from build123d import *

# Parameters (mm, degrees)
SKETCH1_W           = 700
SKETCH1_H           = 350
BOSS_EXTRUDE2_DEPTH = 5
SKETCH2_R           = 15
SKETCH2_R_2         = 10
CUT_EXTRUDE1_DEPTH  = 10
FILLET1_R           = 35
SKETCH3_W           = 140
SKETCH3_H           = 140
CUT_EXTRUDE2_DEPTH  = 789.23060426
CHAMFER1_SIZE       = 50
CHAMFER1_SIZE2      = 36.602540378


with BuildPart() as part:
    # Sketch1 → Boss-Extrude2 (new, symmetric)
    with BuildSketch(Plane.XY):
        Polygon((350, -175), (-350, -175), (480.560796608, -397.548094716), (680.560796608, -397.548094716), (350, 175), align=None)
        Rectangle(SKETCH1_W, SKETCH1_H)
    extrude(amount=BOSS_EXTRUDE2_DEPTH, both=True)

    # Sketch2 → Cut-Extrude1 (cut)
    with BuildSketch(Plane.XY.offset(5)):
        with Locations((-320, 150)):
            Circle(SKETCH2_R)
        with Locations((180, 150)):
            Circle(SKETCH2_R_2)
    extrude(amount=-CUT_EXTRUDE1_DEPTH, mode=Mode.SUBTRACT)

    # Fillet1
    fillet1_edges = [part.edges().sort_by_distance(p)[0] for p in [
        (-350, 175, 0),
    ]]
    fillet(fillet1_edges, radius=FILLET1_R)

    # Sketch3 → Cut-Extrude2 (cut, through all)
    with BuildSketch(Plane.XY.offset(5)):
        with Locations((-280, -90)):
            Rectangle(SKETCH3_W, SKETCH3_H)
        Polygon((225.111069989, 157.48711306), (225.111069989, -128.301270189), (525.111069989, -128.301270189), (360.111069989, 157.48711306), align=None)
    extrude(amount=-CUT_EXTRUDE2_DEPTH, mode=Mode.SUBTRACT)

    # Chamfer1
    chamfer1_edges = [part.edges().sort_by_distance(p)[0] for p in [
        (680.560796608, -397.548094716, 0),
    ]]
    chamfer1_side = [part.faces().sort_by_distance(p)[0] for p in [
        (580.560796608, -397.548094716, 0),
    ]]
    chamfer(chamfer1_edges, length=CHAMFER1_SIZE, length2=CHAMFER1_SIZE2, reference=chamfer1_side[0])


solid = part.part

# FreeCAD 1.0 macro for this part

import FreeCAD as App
import Part
import Sketcher

V = App.Vector
Q = App.Units.Quantity


def edges_at(feature, points):
    """Names of the edges that pass closest to the given points."""
    edges = feature.Shape.Edges
    near = lambda p: min(range(len(edges)), key=lambda i: edges[i].distToShape(Part.Vertex(*p))[0])
    return sorted({f"Edge{near(p) + 1}" for p in points})

doc = App.newDocument("Part")
body = doc.addObject("PartDesign::Body", "Body")

sketch1 = body.newObject("Sketcher::SketchObject", "Sketch")
sketch1.AttachmentSupport = (doc.getObject("XY_Plane"), [""])
sketch1.MapMode = "FlatFace"
sketch1.addGeometry(Part.LineSegment(V(-350, -175, 0), V(480.560797, -397.548095, 0)), False)
sketch1.addGeometry(Part.LineSegment(V(480.560797, -397.548095, 0), V(680.560797, -397.548095, 0)), False)
sketch1.addGeometry(Part.LineSegment(V(680.560797, -397.548095, 0), V(350, 175, 0)), False)
sketch1.addGeometry(Part.LineSegment(V(350, 175, 0), V(-350, 175, 0)), False)
sketch1.addGeometry(Part.LineSegment(V(-350, 175, 0), V(-350, -175, 0)), False)
sketch1.addConstraint(Sketcher.Constraint("Coincident", 0, 2, 1, 1))
sketch1.addConstraint(Sketcher.Constraint("Coincident", 1, 2, 2, 1))
sketch1.addConstraint(Sketcher.Constraint("Coincident", 2, 2, 3, 1))
sketch1.addConstraint(Sketcher.Constraint("Coincident", 3, 2, 4, 1))
sketch1.addConstraint(Sketcher.Constraint("Coincident", 4, 2, 0, 1))
sketch1.addConstraint(Sketcher.Constraint("Horizontal", 1))
sketch1.addConstraint(Sketcher.Constraint("Horizontal", 3))
sketch1.addConstraint(Sketcher.Constraint("Vertical", 4))
sketch1.addConstraint(Sketcher.Constraint("Symmetric", 2, 2, 4, 2, -1, 1))
sketch1.addConstraint(Sketcher.Constraint("DistanceX", 1, 1, 1, 2, Q("200 mm")))
sketch1.addConstraint(Sketcher.Constraint("DistanceX", 3, 2, 3, 1, Q("700 mm")))
sketch1.addConstraint(Sketcher.Constraint("DistanceY", 4, 2, 4, 1, Q("350 mm")))
sketch1.addConstraint(Sketcher.Constraint("Angle", 0, Q("-15 deg")))
sketch1.addConstraint(Sketcher.Constraint("Angle", 2, Q("120 deg")))
pad1 = body.newObject("PartDesign::Pad", "Pad")
pad1.Profile = sketch1
pad1.Length = 10
pad1.Midplane = True

sketch2 = body.newObject("Sketcher::SketchObject", "Sketch001")
sketch2.AttachmentSupport = (doc.getObject("XY_Plane"), [""])
sketch2.MapMode = "FlatFace"
sketch2.AttachmentOffset = App.Placement(V(0, 0, 5), App.Rotation())
sketch2.addGeometry(Part.Circle(V(-320, 150, 0), V(0, 0, 1), 15), False)
sketch2.addGeometry(Part.Circle(V(180, 150, 0), V(0, 0, 1), 10), False)
sketch2.addConstraint(Sketcher.Constraint("Horizontal", 0, 3, 1, 3))
sketch2.addConstraint(Sketcher.Constraint("Diameter", 0, Q("30 mm")))
sketch2.addConstraint(Sketcher.Constraint("Diameter", 1, Q("20 mm")))
sketch2.addConstraint(Sketcher.Constraint("DistanceX", 0, 3, -1, 1, Q("320 mm")))
sketch2.addConstraint(Sketcher.Constraint("DistanceY", -1, 1, 0, 3, Q("150 mm")))
sketch2.addConstraint(Sketcher.Constraint("DistanceX", -1, 1, 1, 3, Q("180 mm")))
pocket1 = body.newObject("PartDesign::Pocket", "Pocket")
pocket1.Profile = sketch2
pocket1.Length = 10
doc.recompute()

fillet = body.newObject("PartDesign::Fillet", "Fillet")
fillet.Base = (pocket1, edges_at(pocket1, [(-350, 175, 0)]))
fillet.Radius = 35

sketch3 = body.newObject("Sketcher::SketchObject", "Sketch002")
sketch3.AttachmentSupport = (doc.getObject("XY_Plane"), [""])
sketch3.MapMode = "FlatFace"
sketch3.AttachmentOffset = App.Placement(V(0, 0, 5), App.Rotation())
sketch3.addGeometry(Part.LineSegment(V(-350, -20, 0), V(-350, -160, 0)), False)
sketch3.addGeometry(Part.LineSegment(V(-350, -160, 0), V(-210, -160, 0)), False)
sketch3.addGeometry(Part.LineSegment(V(-210, -160, 0), V(-210, -20, 0)), False)
sketch3.addGeometry(Part.LineSegment(V(-210, -20, 0), V(-350, -20, 0)), False)
sketch3.addGeometry(Part.LineSegment(V(225.11107, 157.487113, 0), V(225.11107, -128.30127, 0)), False)
sketch3.addGeometry(Part.LineSegment(V(225.11107, -128.30127, 0), V(525.11107, -128.30127, 0)), False)
sketch3.addGeometry(Part.LineSegment(V(525.11107, -128.30127, 0), V(360.11107, 157.487113, 0)), False)
sketch3.addGeometry(Part.LineSegment(V(360.11107, 157.487113, 0), V(225.11107, 157.487113, 0)), False)
sketch3.addConstraint(Sketcher.Constraint("Coincident", 0, 2, 1, 1))
sketch3.addConstraint(Sketcher.Constraint("Coincident", 1, 2, 2, 1))
sketch3.addConstraint(Sketcher.Constraint("Coincident", 2, 2, 3, 1))
sketch3.addConstraint(Sketcher.Constraint("Coincident", 3, 2, 0, 1))
sketch3.addConstraint(Sketcher.Constraint("Coincident", 4, 2, 5, 1))
sketch3.addConstraint(Sketcher.Constraint("Coincident", 5, 2, 6, 1))
sketch3.addConstraint(Sketcher.Constraint("Coincident", 6, 2, 7, 1))
sketch3.addConstraint(Sketcher.Constraint("Coincident", 7, 2, 4, 1))
sketch3.addConstraint(Sketcher.Constraint("Vertical", 0))
sketch3.addConstraint(Sketcher.Constraint("Horizontal", 1))
sketch3.addConstraint(Sketcher.Constraint("Vertical", 2))
sketch3.addConstraint(Sketcher.Constraint("Horizontal", 3))
sketch3.addConstraint(Sketcher.Constraint("Vertical", 4))
sketch3.addConstraint(Sketcher.Constraint("Horizontal", 5))
sketch3.addConstraint(Sketcher.Constraint("Horizontal", 7))
sketch3.addConstraint(Sketcher.Constraint("Equal", 3, 0))
sketch3.addConstraint(Sketcher.Constraint("DistanceX", 1, 1, 1, 2, Q("140 mm")))
sketch3.addConstraint(Sketcher.Constraint("DistanceX", 5, 1, 5, 2, Q("300 mm")))
sketch3.addConstraint(Sketcher.Constraint("DistanceX", 7, 2, 7, 1, Q("135 mm")))
sketch3.addConstraint(Sketcher.Constraint("Angle", 6, Q("120 deg")))
sketch3.addConstraint(Sketcher.Constraint("DistanceX", 0, 2, -1, 1, Q("350 mm")))
sketch3.addConstraint(Sketcher.Constraint("DistanceY", 0, 2, -1, 1, Q("160 mm")))
sketch3.addConstraint(Sketcher.Constraint("DistanceX", -1, 1, 4, 2, Q("225.11107 mm")))
sketch3.addConstraint(Sketcher.Constraint("DistanceY", 4, 2, -1, 1, Q("128.30127 mm")))
pocket2 = body.newObject("PartDesign::Pocket", "Pocket001")
pocket2.Profile = sketch3
pocket2.Type = "ThroughAll"
doc.recompute()

chamfer = body.newObject("PartDesign::Chamfer", "Chamfer")
chamfer.Base = (pocket2, edges_at(pocket2, [(680.561, -397.548, 0)]))
chamfer.ChamferType = "Two distances"
chamfer.Size = 50
chamfer.Size2 = 36.60254
chamfer.FlipDirection = True

doc.recompute()
